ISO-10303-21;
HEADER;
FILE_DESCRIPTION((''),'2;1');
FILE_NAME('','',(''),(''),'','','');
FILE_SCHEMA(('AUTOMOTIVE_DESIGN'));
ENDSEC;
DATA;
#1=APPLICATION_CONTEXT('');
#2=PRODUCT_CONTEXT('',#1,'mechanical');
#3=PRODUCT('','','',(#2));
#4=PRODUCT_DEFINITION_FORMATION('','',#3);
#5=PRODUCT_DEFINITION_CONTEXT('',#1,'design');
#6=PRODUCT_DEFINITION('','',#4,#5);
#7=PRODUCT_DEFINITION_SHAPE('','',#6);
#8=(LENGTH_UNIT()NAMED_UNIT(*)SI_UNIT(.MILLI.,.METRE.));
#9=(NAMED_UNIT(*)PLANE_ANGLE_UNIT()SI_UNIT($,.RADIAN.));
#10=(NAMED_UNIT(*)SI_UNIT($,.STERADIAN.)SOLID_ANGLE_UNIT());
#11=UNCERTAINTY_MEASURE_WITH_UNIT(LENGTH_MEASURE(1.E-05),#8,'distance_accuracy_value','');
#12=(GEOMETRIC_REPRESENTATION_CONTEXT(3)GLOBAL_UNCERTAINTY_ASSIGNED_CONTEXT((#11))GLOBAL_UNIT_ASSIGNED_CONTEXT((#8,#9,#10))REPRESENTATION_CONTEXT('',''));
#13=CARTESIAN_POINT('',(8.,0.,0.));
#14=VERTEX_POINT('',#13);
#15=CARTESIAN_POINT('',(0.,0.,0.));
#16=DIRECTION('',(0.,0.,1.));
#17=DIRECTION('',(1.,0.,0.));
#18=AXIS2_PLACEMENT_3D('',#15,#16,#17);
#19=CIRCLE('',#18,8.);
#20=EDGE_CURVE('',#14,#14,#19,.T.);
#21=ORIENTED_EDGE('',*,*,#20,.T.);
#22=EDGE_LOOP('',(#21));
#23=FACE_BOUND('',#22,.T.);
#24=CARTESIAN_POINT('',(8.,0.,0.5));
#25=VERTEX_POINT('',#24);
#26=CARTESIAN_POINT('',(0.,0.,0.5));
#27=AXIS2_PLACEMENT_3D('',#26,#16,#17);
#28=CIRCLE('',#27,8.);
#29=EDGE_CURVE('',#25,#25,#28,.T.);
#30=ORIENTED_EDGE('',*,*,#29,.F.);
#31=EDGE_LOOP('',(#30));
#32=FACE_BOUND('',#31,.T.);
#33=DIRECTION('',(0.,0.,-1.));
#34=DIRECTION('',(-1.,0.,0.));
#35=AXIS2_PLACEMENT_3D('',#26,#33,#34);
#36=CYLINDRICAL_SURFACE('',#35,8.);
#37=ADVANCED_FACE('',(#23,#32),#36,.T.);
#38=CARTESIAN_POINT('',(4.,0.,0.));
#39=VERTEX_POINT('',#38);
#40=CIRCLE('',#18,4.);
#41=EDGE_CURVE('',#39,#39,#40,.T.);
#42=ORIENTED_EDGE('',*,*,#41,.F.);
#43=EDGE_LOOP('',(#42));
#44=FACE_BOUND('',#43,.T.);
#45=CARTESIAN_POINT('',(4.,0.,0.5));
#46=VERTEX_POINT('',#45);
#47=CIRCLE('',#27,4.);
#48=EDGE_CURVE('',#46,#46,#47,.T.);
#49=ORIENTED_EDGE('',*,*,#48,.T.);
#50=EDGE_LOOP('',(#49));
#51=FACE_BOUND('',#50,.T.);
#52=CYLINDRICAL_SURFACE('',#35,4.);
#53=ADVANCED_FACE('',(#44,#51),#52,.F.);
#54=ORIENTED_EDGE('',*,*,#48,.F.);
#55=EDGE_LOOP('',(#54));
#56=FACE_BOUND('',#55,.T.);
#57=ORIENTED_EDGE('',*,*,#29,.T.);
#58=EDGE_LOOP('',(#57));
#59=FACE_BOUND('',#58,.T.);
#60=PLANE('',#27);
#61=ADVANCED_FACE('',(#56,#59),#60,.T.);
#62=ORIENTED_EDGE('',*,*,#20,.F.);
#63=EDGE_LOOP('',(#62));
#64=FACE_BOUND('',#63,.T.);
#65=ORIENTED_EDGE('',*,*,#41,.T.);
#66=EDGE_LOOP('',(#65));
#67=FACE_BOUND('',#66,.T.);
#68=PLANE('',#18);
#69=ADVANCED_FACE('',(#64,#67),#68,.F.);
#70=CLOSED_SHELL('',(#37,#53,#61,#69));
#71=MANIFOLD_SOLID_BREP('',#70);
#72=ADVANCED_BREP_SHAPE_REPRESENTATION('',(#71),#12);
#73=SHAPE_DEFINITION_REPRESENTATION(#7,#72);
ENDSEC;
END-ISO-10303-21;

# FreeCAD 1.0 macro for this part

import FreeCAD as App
import Part
import Sketcher

doc = App.newDocument("Part")
params = doc.addObject("Spreadsheet::Sheet", "Params")
for row, (alias, value) in enumerate([
    ("sketch1_diameter", "16 mm"),
    ("sketch1_diameter2", "8 mm"),
    ("pad1_length", "0.5 mm"),
], start=1):
    params.set(f"A{row}", alias)
    params.set(f"B{row}", "=" + value)
    params.setAlias(f"B{row}", alias)

body = doc.addObject("PartDesign::Body", "Body")

# Sketch on XY plane
sketch1 = doc.addObject("Sketcher::SketchObject", "Sketch")
body.addObject(sketch1)
sketch1.AttachmentSupport = (doc.XY_Plane, [""])
sketch1.MapMode = "FlatFace"
sketch1.addGeometry([
    Part.Circle(App.Vector(0, 0, 0), App.Vector(0, 0, 1), 8),
    Part.Circle(App.Vector(0, 0, 0), App.Vector(0, 0, 1), 4),
], False)
sketch1.addConstraint([
    Sketcher.Constraint("Coincident", 0, 3, -1, 1),
    Sketcher.Constraint("Coincident", 1, 3, -1, 1),
    Sketcher.Constraint("Diameter", 0, 16.0),
    Sketcher.Constraint("Diameter", 1, 8.0),
])
sketch1.setExpression("Constraints[2]", "Params.sketch1_diameter")
sketch1.setExpression("Constraints[3]", "Params.sketch1_diameter2")
pad1 = doc.addObject("PartDesign::Pad", "Pad")
body.addObject(pad1)
pad1.Profile = sketch1
pad1.setExpression("Length", "Params.pad1_length")

doc.recompute()
